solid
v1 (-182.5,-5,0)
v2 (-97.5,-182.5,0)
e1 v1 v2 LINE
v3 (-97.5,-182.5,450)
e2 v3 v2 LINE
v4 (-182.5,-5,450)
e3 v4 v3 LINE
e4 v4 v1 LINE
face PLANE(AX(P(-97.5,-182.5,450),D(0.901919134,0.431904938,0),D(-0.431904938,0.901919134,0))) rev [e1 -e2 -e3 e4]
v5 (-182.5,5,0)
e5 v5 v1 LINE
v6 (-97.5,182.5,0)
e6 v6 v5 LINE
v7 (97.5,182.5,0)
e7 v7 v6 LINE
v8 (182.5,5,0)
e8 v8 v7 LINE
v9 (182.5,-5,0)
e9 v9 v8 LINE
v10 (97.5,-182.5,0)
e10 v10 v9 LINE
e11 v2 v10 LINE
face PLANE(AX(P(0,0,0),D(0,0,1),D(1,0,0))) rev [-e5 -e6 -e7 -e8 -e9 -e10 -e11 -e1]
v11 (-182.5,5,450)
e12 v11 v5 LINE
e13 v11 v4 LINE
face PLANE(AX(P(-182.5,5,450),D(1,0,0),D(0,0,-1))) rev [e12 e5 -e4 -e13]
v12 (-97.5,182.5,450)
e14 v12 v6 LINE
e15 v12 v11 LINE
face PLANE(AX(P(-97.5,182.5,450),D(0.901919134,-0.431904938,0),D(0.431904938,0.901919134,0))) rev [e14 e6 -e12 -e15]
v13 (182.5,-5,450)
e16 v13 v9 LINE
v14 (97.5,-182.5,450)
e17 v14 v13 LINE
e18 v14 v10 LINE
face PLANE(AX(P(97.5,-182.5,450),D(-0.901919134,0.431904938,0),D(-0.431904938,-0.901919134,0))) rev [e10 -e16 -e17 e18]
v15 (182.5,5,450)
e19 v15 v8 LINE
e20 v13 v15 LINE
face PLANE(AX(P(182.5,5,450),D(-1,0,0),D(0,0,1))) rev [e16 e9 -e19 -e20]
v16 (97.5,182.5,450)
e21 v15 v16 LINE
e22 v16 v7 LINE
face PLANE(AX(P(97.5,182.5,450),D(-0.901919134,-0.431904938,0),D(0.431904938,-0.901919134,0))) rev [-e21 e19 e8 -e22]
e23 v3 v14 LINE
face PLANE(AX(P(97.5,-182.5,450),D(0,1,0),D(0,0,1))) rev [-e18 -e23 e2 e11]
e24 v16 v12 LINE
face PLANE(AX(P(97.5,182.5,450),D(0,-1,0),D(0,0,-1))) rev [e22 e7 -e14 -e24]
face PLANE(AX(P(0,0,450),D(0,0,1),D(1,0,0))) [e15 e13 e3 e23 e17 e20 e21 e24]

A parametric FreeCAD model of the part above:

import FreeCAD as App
import Part
import Sketcher

V = App.Vector
Q = App.Units.Quantity

doc = App.newDocument("Part")
body = doc.addObject("PartDesign::Body", "Body")

sketch1 = body.newObject("Sketcher::SketchObject", "Sketch")
sketch1.AttachmentSupport = (doc.getObject("XY_Plane"), [""])
sketch1.MapMode = "FlatFace"
sketch1.addGeometry(Part.LineSegment(V(98, 182, 0), V(-98, 182, 0)), False)
sketch1.addGeometry(Part.LineSegment(V(-98, 182, 0), V(-182, 5, 0)), False)
sketch1.addGeometry(Part.LineSegment(V(-182, 5, 0), V(-182, -5, 0)), False)
sketch1.addGeometry(Part.LineSegment(V(-182, -5, 0), V(-98, -182, 0)), False)
sketch1.addGeometry(Part.LineSegment(V(-98, -182, 0), V(98, -182, 0)), False)
sketch1.addGeometry(Part.LineSegment(V(98, -182, 0), V(182, -5, 0)), False)
sketch1.addGeometry(Part.LineSegment(V(182, -5, 0), V(182, 5, 0)), False)
sketch1.addGeometry(Part.LineSegment(V(182, 5, 0), V(98, 182, 0)), False)
sketch1.addConstraint(Sketcher.Constraint("Coincident", 0, 2, 1, 1))
sketch1.addConstraint(Sketcher.Constraint("Coincident", 1, 2, 2, 1))
sketch1.addConstraint(Sketcher.Constraint("Coincident", 2, 2, 3, 1))
sketch1.addConstraint(Sketcher.Constraint("Coincident", 3, 2, 4, 1))
sketch1.addConstraint(Sketcher.Constraint("Coincident", 4, 2, 5, 1))
sketch1.addConstraint(Sketcher.Constraint("Coincident", 5, 2, 6, 1))
sketch1.addConstraint(Sketcher.Constraint("Coincident", 6, 2, 7, 1))
sketch1.addConstraint(Sketcher.Constraint("Coincident", 7, 2, 0, 1))
sketch1.addConstraint(Sketcher.Constraint("Horizontal", 0))
sketch1.addConstraint(Sketcher.Constraint("Vertical", 2))
sketch1.addConstraint(Sketcher.Constraint("Horizontal", 4))
sketch1.addConstraint(Sketcher.Constraint("Vertical", 6))
sketch1.addConstraint(Sketcher.Constraint("Symmetric", 0, 2, 4, 2, -1, 1))
sketch1.addConstraint(Sketcher.Constraint("Symmetric", 1, 2, 5, 2, -1, 1))
sketch1.addConstraint(Sketcher.Constraint("Parallel", 3, 7))
sketch1.addConstraint(Sketcher.Constraint("Horizontal", 2, 2, 5, 2))
sketch1.addConstraint(Sketcher.Constraint("Horizontal", 1, 2, 6, 2))
sketch1.addConstraint(Sketcher.Constraint("Vertical", 0, 2, 3, 2))
sketch1.addConstraint(Sketcher.Constraint("DistanceX", 0, 2, 0, 1, Q("195 mm")))
sketch1.addConstraint(Sketcher.Constraint("DistanceY", 2, 2, 2, 1, Q("10 mm")))
sketch1.addConstraint(Sketcher.Constraint("DistanceX", 1, 2, 0, 2, Q("85 mm")))
sketch1.addConstraint(Sketcher.Constraint("DistanceY", 3, 2, 0, 2, Q("365 mm")))
pad1 = body.newObject("PartDesign::Pad", "Pad")
pad1.Profile = sketch1
pad1.Length = 450

doc.recompute()
